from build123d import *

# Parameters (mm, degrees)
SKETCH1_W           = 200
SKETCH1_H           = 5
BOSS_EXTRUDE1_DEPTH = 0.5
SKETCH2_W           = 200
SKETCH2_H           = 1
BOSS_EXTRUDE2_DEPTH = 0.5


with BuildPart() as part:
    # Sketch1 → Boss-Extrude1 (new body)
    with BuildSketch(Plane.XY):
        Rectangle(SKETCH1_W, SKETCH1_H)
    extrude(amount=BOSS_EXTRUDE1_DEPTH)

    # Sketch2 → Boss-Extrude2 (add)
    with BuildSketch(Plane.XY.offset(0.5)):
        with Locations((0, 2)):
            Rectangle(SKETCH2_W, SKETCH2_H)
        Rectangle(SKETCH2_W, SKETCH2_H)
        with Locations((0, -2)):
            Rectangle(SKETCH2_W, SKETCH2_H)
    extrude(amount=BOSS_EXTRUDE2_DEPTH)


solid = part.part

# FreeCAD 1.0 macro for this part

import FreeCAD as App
import Part
import Sketcher

V = App.Vector
Q = App.Units.Quantity

doc = App.newDocument("Part")
params = doc.addObject("Spreadsheet::Sheet", "Params")
for row, (alias, value) in enumerate([
    ("sketch1_width", "200 mm"),
    ("sketch1_height", "5 mm"),
    ("pad1_length", "0.5 mm"),
    ("sketch2_width", "200 mm"),
    ("sketch2_height", "1 mm"),
    ("pad2_length", "0.5 mm"),
], start=1):
    params.set(f"A{row}", alias)
    params.set(f"B{row}", "=" + value)
    params.setAlias(f"B{row}", alias)

body = doc.addObject("PartDesign::Body", "Body")

# Sketch on XY plane
sketch1 = body.newObject("Sketcher::SketchObject", "Sketch")
sketch1.AttachmentSupport = (doc.getObject("XY_Plane"), [""])
sketch1.MapMode = "FlatFace"
sketch1.addGeometry(Part.LineSegment(V(-100, 2.5, 0), V(-100, -2.5, 0)), False)
sketch1.addGeometry(Part.LineSegment(V(-100, -2.5, 0), V(100, -2.5, 0)), False)
sketch1.addGeometry(Part.LineSegment(V(100, -2.5, 0), V(100, 2.5, 0)), False)
sketch1.addGeometry(Part.LineSegment(V(100, 2.5, 0), V(-100, 2.5, 0)), False)
sketch1.addConstraint(Sketcher.Constraint("Coincident", 0, 2, 1, 1))
sketch1.addConstraint(Sketcher.Constraint("Coincident", 1, 2, 2, 1))
sketch1.addConstraint(Sketcher.Constraint("Coincident", 2, 2, 3, 1))
sketch1.addConstraint(Sketcher.Constraint("Coincident", 3, 2, 0, 1))
sketch1.addConstraint(Sketcher.Constraint("Vertical", 0))
sketch1.addConstraint(Sketcher.Constraint("Horizontal", 1))
sketch1.addConstraint(Sketcher.Constraint("Vertical", 2))
sketch1.addConstraint(Sketcher.Constraint("Horizontal", 3))
sketch1.addConstraint(Sketcher.Constraint("Symmetric", 0, 2, 2, 2, -1, 1))
sketch1.addConstraint(Sketcher.Constraint("DistanceX", 1, 1, 1, 2, Q("200 mm")))
sketch1.addConstraint(Sketcher.Constraint("DistanceY", 0, 2, 0, 1, Q("5 mm")))
sketch1.setExpression("Constraints[9]", "Params.sketch1_width")
sketch1.setExpression("Constraints[10]", "Params.sketch1_height")
pad1 = body.newObject("PartDesign::Pad", "Pad")
pad1.Profile = sketch1
pad1.setExpression("Length", "Params.pad1_length")

# Sketch on XY plane
sketch2 = body.newObject("Sketcher::SketchObject", "Sketch001")
sketch2.AttachmentSupport = (doc.getObject("XY_Plane"), [""])
sketch2.MapMode = "FlatFace"
sketch2.AttachmentOffset = App.Placement(V(0, 0, 0.5), App.Rotation())
sketch2.addGeometry(Part.LineSegment(V(-100, 2.5, 0), V(-100, 1.5, 0)), False)
sketch2.addGeometry(Part.LineSegment(V(-100, 1.5, 0), V(100, 1.5, 0)), False)
sketch2.addGeometry(Part.LineSegment(V(100, 1.5, 0), V(100, 2.5, 0)), False)
sketch2.addGeometry(Part.LineSegment(V(100, 2.5, 0), V(-100, 2.5, 0)), False)
sketch2.addGeometry(Part.LineSegment(V(-100, 0.5, 0), V(-100, -0.5, 0)), False)
sketch2.addGeometry(Part.LineSegment(V(-100, -0.5, 0), V(100, -0.5, 0)), False)
sketch2.addGeometry(Part.LineSegment(V(100, -0.5, 0), V(100, 0.5, 0)), False)
sketch2.addGeometry(Part.LineSegment(V(100, 0.5, 0), V(-100, 0.5, 0)), False)
sketch2.addGeometry(Part.LineSegment(V(-100, -1.5, 0), V(-100, -2.5, 0)), False)
sketch2.addGeometry(Part.LineSegment(V(-100, -2.5, 0), V(100, -2.5, 0)), False)
sketch2.addGeometry(Part.LineSegment(V(100, -2.5, 0), V(100, -1.5, 0)), False)
sketch2.addGeometry(Part.LineSegment(V(100, -1.5, 0), V(-100, -1.5, 0)), False)
sketch2.addConstraint(Sketcher.Constraint("Coincident", 0, 2, 1, 1))
sketch2.addConstraint(Sketcher.Constraint("Coincident", 1, 2, 2, 1))
sketch2.addConstraint(Sketcher.Constraint("Coincident", 2, 2, 3, 1))
sketch2.addConstraint(Sketcher.Constraint("Coincident", 3, 2, 0, 1))
sketch2.addConstraint(Sketcher.Constraint("Coincident", 4, 2, 5, 1))
sketch2.addConstraint(Sketcher.Constraint("Coincident", 5, 2, 6, 1))
sketch2.addConstraint(Sketcher.Constraint("Coincident", 6, 2, 7, 1))
sketch2.addConstraint(Sketcher.Constraint("Coincident", 7, 2, 4, 1))
sketch2.addConstraint(Sketcher.Constraint("Coincident", 8, 2, 9, 1))
sketch2.addConstraint(Sketcher.Constraint("Coincident", 9, 2, 10, 1))
sketch2.addConstraint(Sketcher.Constraint("Coincident", 10, 2, 11, 1))
sketch2.addConstraint(Sketcher.Constraint("Coincident", 11, 2, 8, 1))
sketch2.addConstraint(Sketcher.Constraint("Vertical", 0))
sketch2.addConstraint(Sketcher.Constraint("Horizontal", 1))
sketch2.addConstraint(Sketcher.Constraint("Vertical", 2))
sketch2.addConstraint(Sketcher.Constraint("Horizontal", 3))
sketch2.addConstraint(Sketcher.Constraint("Vertical", 4))
sketch2.addConstraint(Sketcher.Constraint("Horizontal", 5))
sketch2.addConstraint(Sketcher.Constraint("Vertical", 6))
sketch2.addConstraint(Sketcher.Constraint("Horizontal", 7))
sketch2.addConstraint(Sketcher.Constraint("Vertical", 8))
sketch2.addConstraint(Sketcher.Constraint("Horizontal", 9))
sketch2.addConstraint(Sketcher.Constraint("Vertical", 10))
sketch2.addConstraint(Sketcher.Constraint("Horizontal", 11))
sketch2.addConstraint(Sketcher.Constraint("Symmetric", 4, 2, 6, 2, -1, 1))
sketch2.addConstraint(Sketcher.Constraint("Symmetric", 2, 2, 8, 2, -1, 1))
sketch2.addConstraint(Sketcher.Constraint("Symmetric", 0, 2, 10, 2, -1, 1))
sketch2.addConstraint(Sketcher.Constraint("Vertical", 3, 2, 4, 2))
sketch2.addConstraint(Sketcher.Constraint("Vertical", 2, 2, 5, 2))
sketch2.addConstraint(Sketcher.Constraint("Equal", 2, 4))
sketch2.addConstraint(Sketcher.Constraint("DistanceX", 1, 1, 1, 2, Q("200 mm")))
sketch2.addConstraint(Sketcher.Constraint("DistanceY", 0, 2, 0, 1, Q("1 mm")))
sketch2.addConstraint(Sketcher.Constraint("DistanceY", 4, 2, 0, 2, Q("2 mm")))
sketch2.setExpression("Constraints[30]", "Params.sketch2_width")
sketch2.setExpression("Constraints[31]", "Params.sketch2_height")
pad2 = body.newObject("PartDesign::Pad", "Pad001")
pad2.Profile = sketch2
pad2.setExpression("Length", "Params.pad2_length")

doc.recompute()
